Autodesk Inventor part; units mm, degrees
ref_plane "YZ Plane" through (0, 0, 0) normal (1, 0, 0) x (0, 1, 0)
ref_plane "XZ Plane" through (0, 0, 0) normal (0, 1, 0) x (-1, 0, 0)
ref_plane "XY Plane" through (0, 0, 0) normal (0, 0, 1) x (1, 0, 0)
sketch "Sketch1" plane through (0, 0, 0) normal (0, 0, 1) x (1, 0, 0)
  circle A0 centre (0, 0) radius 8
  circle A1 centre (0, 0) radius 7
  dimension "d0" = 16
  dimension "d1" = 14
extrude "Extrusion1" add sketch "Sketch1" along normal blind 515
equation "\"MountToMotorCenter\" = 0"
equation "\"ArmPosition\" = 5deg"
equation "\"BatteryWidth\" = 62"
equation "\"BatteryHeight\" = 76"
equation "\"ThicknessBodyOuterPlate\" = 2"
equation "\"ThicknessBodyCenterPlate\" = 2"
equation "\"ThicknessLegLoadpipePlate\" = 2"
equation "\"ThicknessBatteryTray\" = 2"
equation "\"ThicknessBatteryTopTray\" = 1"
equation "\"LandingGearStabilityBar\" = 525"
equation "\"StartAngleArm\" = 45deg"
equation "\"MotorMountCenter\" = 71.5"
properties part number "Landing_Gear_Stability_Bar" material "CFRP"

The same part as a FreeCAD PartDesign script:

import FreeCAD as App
import Part
import Sketcher
Q = App.Units.Quantity

doc = App.newDocument("Part")
body = doc.addObject("PartDesign::Body", "Body")

# Sketch on XY plane
sketch1 = doc.addObject("Sketcher::SketchObject", "Sketch")
body.addObject(sketch1)
sketch1.AttachmentSupport = (doc.XY_Plane, [""])
sketch1.MapMode = "FlatFace"
sketch1.addGeometry([
    Part.Circle(App.Vector(0, 0, 0), App.Vector(0, 0, 1), 8),
    Part.Circle(App.Vector(0, 0, 0), App.Vector(0, 0, 1), 7),
], False)
sketch1.addConstraint([
    Sketcher.Constraint("Coincident", 0, 3, -1, 1),
    Sketcher.Constraint("Coincident", 1, 3, -1, 1),
    Sketcher.Constraint("Diameter", 0, Q("16 mm")),
    Sketcher.Constraint("Diameter", 1, Q("14 mm")),
])
pad1 = doc.addObject("PartDesign::Pad", "Pad")
body.addObject(pad1)
pad1.Profile = sketch1
pad1.Length = 515

doc.recompute()
